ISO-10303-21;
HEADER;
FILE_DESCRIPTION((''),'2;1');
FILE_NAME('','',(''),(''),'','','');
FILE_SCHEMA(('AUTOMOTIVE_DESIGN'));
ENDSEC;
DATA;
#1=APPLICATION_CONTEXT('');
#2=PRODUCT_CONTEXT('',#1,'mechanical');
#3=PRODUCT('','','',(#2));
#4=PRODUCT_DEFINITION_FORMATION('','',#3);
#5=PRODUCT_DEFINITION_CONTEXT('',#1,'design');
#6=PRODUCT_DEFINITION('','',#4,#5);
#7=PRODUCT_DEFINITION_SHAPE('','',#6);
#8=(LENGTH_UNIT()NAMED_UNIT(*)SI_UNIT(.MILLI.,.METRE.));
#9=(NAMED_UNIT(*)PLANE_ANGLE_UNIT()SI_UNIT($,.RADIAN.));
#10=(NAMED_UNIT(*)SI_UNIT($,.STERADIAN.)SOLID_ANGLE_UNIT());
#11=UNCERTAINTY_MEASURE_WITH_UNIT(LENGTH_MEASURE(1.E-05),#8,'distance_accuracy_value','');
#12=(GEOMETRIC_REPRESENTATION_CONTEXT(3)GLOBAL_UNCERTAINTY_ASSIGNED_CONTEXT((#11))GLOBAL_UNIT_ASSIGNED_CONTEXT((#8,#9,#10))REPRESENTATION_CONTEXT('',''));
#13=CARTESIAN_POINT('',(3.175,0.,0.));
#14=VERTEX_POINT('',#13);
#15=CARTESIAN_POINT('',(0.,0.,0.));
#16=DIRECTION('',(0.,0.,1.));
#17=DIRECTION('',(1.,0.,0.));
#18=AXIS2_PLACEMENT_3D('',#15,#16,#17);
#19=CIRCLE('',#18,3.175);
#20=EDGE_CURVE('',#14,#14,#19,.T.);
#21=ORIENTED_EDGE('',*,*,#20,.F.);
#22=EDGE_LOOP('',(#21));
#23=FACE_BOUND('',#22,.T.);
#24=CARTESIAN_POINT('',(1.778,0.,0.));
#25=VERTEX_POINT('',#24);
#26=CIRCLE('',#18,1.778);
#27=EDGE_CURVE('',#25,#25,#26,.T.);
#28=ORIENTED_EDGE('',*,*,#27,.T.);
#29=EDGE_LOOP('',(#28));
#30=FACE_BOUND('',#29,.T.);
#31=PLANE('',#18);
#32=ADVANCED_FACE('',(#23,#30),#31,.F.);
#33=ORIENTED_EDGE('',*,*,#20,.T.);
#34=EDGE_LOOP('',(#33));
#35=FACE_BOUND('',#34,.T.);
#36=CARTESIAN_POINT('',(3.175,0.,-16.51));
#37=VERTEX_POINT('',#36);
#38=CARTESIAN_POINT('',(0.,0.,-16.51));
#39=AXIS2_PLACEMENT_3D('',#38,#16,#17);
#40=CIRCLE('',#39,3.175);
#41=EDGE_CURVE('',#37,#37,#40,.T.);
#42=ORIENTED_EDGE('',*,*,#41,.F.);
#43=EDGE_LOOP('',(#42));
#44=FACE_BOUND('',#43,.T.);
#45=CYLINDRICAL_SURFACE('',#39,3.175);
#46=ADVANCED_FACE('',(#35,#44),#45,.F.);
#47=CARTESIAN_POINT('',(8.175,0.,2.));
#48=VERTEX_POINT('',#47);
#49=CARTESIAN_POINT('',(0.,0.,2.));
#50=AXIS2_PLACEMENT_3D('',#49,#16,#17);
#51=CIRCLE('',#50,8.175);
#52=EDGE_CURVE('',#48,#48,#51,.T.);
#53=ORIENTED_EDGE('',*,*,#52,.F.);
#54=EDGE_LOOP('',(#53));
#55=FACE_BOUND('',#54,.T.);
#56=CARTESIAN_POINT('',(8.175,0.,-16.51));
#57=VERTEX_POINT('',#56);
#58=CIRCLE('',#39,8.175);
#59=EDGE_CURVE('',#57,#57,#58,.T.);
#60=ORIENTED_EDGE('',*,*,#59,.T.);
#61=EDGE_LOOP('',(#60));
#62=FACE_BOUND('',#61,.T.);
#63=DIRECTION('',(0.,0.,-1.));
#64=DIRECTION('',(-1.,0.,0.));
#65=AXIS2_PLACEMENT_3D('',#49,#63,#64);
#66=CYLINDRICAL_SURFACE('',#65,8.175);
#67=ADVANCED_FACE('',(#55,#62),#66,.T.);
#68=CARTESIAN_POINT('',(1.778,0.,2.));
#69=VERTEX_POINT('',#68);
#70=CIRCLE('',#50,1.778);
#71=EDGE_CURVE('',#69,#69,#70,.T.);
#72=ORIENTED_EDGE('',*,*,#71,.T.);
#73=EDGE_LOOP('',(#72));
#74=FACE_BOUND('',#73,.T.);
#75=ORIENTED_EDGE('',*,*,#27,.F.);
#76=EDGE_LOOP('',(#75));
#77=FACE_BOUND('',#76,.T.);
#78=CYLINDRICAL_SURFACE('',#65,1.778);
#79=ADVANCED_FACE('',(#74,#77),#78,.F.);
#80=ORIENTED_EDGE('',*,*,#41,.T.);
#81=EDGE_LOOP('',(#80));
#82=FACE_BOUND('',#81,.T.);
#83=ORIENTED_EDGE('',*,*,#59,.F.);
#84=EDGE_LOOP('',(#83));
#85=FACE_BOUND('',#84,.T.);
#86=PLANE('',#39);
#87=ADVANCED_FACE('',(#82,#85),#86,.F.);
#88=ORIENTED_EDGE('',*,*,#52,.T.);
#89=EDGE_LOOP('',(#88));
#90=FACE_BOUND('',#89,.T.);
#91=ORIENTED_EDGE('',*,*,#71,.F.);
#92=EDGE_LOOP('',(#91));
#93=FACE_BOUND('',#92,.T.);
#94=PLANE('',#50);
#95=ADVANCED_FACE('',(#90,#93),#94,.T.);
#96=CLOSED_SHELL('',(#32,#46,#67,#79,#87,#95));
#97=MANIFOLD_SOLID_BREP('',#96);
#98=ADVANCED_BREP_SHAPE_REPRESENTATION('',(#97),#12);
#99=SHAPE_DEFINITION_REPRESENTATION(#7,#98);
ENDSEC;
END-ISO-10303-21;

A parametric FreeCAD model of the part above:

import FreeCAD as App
import Part
import Sketcher
Q = App.Units.Quantity

doc = App.newDocument("Part")
params = doc.addObject("Spreadsheet::Sheet", "Params")
for row, (alias, value) in enumerate([
    ("sketch1_diameter", "0.14 in"),
    ("pad1_length", "2 mm"),
    ("sketch2_diameter", "0.25 in"),
    ("pad2_length", "0.65 in"),
], start=1):
    params.set(f"A{row}", alias)
    params.set(f"B{row}", "=" + value)
    params.setAlias(f"B{row}", alias)

body = doc.addObject("PartDesign::Body", "Body")

sketch1 = body.newObject("Sketcher::SketchObject", "Sketch")
sketch1.AttachmentSupport = (doc.getObject("XY_Plane"), [""])
sketch1.MapMode = "FlatFace"
sketch1.addGeometry([
    Part.Circle(App.Vector(0, 0, 0), App.Vector(0, 0, 1), 8.2),
    Part.Circle(App.Vector(0, 0, 0), App.Vector(0, 0, 1), 1.8),
], False)
sketch1.addConstraint([
    Sketcher.Constraint("Coincident", 0, 3, -1, 1),
    Sketcher.Constraint("Coincident", 1, 3, -1, 1),
    Sketcher.Constraint("Diameter", 1, Q("0.14 in")),
    Sketcher.Constraint("Diameter", 0, Q("16.35 mm")),
])
sketch1.setExpression("Constraints[2]", "Params.sketch1_diameter")
pad1 = body.newObject("PartDesign::Pad", "Pad")
pad1.Profile = sketch1
pad1.setExpression("Length", "Params.pad1_length")

sketch2 = body.newObject("Sketcher::SketchObject", "Sketch001")
sketch2.AttachmentSupport = (doc.getObject("XY_Plane"), [""])
sketch2.MapMode = "FlatFace"
sketch2.addGeometry([
    Part.Circle(App.Vector(0, 0, 0), App.Vector(0, 0, 1), 8.2),
    Part.Circle(App.Vector(0, 0, 0), App.Vector(0, 0, 1), 3.2),
], False)
sketch2.addConstraint([
    Sketcher.Constraint("Coincident", 0, 3, -1, 1),
    Sketcher.Constraint("Coincident", 1, 3, -1, 1),
    Sketcher.Constraint("Diameter", 1, Q("0.25 in")),
    Sketcher.Constraint("Diameter", 0, Q("16.35 mm")),
])
sketch2.setExpression("Constraints[2]", "Params.sketch2_diameter")
pad2 = body.newObject("PartDesign::Pad", "Pad001")
pad2.Profile = sketch2
pad2.setExpression("Length", "Params.pad2_length")
pad2.Reversed = True

doc.recompute()
